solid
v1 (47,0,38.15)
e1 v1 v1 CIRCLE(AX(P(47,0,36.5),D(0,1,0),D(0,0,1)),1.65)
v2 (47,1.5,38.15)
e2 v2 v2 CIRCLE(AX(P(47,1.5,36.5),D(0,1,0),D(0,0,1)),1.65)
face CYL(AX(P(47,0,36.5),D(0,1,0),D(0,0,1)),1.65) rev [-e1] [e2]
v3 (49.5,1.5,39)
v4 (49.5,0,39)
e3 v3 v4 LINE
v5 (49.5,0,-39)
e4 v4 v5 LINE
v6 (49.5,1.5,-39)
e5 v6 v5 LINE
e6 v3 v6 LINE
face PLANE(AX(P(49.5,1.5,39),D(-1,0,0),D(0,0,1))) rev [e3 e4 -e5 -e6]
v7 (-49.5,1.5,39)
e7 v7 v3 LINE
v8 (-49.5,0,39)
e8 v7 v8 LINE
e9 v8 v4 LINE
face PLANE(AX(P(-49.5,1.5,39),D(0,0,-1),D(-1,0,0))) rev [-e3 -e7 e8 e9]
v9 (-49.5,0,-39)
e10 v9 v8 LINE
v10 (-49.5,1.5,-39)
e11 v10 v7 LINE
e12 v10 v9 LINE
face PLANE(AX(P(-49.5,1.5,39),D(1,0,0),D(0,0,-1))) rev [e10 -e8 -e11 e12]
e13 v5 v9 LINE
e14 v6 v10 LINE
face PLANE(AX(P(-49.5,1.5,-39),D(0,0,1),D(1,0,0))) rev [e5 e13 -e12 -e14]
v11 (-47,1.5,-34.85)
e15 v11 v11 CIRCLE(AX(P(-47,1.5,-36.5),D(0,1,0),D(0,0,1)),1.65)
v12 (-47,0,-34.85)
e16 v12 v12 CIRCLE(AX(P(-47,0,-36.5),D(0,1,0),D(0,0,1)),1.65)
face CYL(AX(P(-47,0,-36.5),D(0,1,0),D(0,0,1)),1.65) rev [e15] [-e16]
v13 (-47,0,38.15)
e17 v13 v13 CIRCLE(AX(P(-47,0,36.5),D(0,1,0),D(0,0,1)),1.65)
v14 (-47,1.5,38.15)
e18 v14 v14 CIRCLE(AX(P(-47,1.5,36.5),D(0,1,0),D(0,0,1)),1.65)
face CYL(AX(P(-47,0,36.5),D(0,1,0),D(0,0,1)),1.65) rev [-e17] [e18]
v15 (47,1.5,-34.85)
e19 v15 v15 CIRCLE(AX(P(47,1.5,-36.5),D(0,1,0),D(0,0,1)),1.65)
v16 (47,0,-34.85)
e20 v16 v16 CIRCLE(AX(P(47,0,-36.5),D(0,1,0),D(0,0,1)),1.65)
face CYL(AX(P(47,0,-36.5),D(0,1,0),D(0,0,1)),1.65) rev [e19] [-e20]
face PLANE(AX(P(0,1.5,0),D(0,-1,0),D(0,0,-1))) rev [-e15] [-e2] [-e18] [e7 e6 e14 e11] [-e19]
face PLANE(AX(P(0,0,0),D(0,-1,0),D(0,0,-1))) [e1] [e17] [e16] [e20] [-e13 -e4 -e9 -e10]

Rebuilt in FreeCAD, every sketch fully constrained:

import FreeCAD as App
import Part
import Sketcher


def add_polygon(sketch, points):
    """Adds a closed chain of lines whose ends are joined by coincident constraints."""
    first, n = sketch.GeometryCount, len(points)
    for a, b in zip(points, points[1:] + points[:1]):
        sketch.addGeometry(Part.LineSegment(App.Vector(*a, 0), App.Vector(*b, 0)), False)
    for i in range(n):
        sketch.addConstraint(Sketcher.Constraint("Coincident", first + i, 2, first + (i + 1) % n, 1))

doc = App.newDocument("Part")
body = doc.addObject("PartDesign::Body", "Body")

# Sketch on XZ plane
sketch1 = body.newObject("Sketcher::SketchObject", "Sketch")
sketch1.AttachmentSupport = (doc.getObject("XZ_Plane"), [""])
sketch1.MapMode = "FlatFace"
add_polygon(sketch1, [(-49.5, -39), (-49.5, 39), (49.5, 39), (49.5, -39)])  # lines 0-3
sketch1.addConstraint(Sketcher.Constraint("Vertical", 0))
sketch1.addConstraint(Sketcher.Constraint("Horizontal", 1))
sketch1.addConstraint(Sketcher.Constraint("Vertical", 2))
sketch1.addConstraint(Sketcher.Constraint("Horizontal", 3))
sketch1.addConstraint(Sketcher.Constraint("Symmetric", 0, 2, 2, 2, -1, 1))
sketch1.addConstraint(Sketcher.Constraint("DistanceX", 1, 1, 1, 2, 99.0))
sketch1.addConstraint(Sketcher.Constraint("DistanceY", 0, 1, 0, 2, 78.0))
pad1 = body.newObject("PartDesign::Pad", "Pad")
pad1.Profile = sketch1
pad1.Length = 1.5
pad1.Reversed = True

# Sketch on XZ plane
sketch2 = body.newObject("Sketcher::SketchObject", "Sketch001")
sketch2.AttachmentSupport = (doc.getObject("XZ_Plane"), [""])
sketch2.MapMode = "FlatFace"
sketch2.AttachmentOffset = App.Placement(App.Vector(0, 0, -1.5), App.Rotation())
sketch2.addGeometry(Part.Circle(App.Vector(-47, -36.5, 0), App.Vector(0, 0, 1), 1.65), False)
sketch2.addGeometry(Part.Circle(App.Vector(47, -36.5, 0), App.Vector(0, 0, 1), 1.65), False)
sketch2.addGeometry(Part.Circle(App.Vector(47, 36.5, 0), App.Vector(0, 0, 1), 1.65), False)
sketch2.addGeometry(Part.Circle(App.Vector(-47, 36.5, 0), App.Vector(0, 0, 1), 1.65), False)
sketch2.addConstraint(Sketcher.Constraint("Equal", 0, 1))
sketch2.addConstraint(Sketcher.Constraint("Equal", 1, 2))
sketch2.addConstraint(Sketcher.Constraint("Equal", 2, 3))
sketch2.addConstraint(Sketcher.Constraint("Symmetric", 0, 3, 2, 3, -1, 1))
sketch2.addConstraint(Sketcher.Constraint("Symmetric", 1, 3, 3, 3, -1, 1))
sketch2.addConstraint(Sketcher.Constraint("Symmetric", 0, 3, 1, 3, -2))
sketch2.addConstraint(Sketcher.Constraint("Diameter", 0, 3.3))
sketch2.addConstraint(Sketcher.Constraint("DistanceX", 0, 3, -1, 1, 47.0))
sketch2.addConstraint(Sketcher.Constraint("DistanceY", 1, 3, 2, 3, 73.0))
pocket1 = body.newObject("PartDesign::Pocket", "Pocket")
pocket1.Profile = sketch2
pocket1.Type = "ThroughAll"
pocket1.Reversed = True

doc.recompute()
